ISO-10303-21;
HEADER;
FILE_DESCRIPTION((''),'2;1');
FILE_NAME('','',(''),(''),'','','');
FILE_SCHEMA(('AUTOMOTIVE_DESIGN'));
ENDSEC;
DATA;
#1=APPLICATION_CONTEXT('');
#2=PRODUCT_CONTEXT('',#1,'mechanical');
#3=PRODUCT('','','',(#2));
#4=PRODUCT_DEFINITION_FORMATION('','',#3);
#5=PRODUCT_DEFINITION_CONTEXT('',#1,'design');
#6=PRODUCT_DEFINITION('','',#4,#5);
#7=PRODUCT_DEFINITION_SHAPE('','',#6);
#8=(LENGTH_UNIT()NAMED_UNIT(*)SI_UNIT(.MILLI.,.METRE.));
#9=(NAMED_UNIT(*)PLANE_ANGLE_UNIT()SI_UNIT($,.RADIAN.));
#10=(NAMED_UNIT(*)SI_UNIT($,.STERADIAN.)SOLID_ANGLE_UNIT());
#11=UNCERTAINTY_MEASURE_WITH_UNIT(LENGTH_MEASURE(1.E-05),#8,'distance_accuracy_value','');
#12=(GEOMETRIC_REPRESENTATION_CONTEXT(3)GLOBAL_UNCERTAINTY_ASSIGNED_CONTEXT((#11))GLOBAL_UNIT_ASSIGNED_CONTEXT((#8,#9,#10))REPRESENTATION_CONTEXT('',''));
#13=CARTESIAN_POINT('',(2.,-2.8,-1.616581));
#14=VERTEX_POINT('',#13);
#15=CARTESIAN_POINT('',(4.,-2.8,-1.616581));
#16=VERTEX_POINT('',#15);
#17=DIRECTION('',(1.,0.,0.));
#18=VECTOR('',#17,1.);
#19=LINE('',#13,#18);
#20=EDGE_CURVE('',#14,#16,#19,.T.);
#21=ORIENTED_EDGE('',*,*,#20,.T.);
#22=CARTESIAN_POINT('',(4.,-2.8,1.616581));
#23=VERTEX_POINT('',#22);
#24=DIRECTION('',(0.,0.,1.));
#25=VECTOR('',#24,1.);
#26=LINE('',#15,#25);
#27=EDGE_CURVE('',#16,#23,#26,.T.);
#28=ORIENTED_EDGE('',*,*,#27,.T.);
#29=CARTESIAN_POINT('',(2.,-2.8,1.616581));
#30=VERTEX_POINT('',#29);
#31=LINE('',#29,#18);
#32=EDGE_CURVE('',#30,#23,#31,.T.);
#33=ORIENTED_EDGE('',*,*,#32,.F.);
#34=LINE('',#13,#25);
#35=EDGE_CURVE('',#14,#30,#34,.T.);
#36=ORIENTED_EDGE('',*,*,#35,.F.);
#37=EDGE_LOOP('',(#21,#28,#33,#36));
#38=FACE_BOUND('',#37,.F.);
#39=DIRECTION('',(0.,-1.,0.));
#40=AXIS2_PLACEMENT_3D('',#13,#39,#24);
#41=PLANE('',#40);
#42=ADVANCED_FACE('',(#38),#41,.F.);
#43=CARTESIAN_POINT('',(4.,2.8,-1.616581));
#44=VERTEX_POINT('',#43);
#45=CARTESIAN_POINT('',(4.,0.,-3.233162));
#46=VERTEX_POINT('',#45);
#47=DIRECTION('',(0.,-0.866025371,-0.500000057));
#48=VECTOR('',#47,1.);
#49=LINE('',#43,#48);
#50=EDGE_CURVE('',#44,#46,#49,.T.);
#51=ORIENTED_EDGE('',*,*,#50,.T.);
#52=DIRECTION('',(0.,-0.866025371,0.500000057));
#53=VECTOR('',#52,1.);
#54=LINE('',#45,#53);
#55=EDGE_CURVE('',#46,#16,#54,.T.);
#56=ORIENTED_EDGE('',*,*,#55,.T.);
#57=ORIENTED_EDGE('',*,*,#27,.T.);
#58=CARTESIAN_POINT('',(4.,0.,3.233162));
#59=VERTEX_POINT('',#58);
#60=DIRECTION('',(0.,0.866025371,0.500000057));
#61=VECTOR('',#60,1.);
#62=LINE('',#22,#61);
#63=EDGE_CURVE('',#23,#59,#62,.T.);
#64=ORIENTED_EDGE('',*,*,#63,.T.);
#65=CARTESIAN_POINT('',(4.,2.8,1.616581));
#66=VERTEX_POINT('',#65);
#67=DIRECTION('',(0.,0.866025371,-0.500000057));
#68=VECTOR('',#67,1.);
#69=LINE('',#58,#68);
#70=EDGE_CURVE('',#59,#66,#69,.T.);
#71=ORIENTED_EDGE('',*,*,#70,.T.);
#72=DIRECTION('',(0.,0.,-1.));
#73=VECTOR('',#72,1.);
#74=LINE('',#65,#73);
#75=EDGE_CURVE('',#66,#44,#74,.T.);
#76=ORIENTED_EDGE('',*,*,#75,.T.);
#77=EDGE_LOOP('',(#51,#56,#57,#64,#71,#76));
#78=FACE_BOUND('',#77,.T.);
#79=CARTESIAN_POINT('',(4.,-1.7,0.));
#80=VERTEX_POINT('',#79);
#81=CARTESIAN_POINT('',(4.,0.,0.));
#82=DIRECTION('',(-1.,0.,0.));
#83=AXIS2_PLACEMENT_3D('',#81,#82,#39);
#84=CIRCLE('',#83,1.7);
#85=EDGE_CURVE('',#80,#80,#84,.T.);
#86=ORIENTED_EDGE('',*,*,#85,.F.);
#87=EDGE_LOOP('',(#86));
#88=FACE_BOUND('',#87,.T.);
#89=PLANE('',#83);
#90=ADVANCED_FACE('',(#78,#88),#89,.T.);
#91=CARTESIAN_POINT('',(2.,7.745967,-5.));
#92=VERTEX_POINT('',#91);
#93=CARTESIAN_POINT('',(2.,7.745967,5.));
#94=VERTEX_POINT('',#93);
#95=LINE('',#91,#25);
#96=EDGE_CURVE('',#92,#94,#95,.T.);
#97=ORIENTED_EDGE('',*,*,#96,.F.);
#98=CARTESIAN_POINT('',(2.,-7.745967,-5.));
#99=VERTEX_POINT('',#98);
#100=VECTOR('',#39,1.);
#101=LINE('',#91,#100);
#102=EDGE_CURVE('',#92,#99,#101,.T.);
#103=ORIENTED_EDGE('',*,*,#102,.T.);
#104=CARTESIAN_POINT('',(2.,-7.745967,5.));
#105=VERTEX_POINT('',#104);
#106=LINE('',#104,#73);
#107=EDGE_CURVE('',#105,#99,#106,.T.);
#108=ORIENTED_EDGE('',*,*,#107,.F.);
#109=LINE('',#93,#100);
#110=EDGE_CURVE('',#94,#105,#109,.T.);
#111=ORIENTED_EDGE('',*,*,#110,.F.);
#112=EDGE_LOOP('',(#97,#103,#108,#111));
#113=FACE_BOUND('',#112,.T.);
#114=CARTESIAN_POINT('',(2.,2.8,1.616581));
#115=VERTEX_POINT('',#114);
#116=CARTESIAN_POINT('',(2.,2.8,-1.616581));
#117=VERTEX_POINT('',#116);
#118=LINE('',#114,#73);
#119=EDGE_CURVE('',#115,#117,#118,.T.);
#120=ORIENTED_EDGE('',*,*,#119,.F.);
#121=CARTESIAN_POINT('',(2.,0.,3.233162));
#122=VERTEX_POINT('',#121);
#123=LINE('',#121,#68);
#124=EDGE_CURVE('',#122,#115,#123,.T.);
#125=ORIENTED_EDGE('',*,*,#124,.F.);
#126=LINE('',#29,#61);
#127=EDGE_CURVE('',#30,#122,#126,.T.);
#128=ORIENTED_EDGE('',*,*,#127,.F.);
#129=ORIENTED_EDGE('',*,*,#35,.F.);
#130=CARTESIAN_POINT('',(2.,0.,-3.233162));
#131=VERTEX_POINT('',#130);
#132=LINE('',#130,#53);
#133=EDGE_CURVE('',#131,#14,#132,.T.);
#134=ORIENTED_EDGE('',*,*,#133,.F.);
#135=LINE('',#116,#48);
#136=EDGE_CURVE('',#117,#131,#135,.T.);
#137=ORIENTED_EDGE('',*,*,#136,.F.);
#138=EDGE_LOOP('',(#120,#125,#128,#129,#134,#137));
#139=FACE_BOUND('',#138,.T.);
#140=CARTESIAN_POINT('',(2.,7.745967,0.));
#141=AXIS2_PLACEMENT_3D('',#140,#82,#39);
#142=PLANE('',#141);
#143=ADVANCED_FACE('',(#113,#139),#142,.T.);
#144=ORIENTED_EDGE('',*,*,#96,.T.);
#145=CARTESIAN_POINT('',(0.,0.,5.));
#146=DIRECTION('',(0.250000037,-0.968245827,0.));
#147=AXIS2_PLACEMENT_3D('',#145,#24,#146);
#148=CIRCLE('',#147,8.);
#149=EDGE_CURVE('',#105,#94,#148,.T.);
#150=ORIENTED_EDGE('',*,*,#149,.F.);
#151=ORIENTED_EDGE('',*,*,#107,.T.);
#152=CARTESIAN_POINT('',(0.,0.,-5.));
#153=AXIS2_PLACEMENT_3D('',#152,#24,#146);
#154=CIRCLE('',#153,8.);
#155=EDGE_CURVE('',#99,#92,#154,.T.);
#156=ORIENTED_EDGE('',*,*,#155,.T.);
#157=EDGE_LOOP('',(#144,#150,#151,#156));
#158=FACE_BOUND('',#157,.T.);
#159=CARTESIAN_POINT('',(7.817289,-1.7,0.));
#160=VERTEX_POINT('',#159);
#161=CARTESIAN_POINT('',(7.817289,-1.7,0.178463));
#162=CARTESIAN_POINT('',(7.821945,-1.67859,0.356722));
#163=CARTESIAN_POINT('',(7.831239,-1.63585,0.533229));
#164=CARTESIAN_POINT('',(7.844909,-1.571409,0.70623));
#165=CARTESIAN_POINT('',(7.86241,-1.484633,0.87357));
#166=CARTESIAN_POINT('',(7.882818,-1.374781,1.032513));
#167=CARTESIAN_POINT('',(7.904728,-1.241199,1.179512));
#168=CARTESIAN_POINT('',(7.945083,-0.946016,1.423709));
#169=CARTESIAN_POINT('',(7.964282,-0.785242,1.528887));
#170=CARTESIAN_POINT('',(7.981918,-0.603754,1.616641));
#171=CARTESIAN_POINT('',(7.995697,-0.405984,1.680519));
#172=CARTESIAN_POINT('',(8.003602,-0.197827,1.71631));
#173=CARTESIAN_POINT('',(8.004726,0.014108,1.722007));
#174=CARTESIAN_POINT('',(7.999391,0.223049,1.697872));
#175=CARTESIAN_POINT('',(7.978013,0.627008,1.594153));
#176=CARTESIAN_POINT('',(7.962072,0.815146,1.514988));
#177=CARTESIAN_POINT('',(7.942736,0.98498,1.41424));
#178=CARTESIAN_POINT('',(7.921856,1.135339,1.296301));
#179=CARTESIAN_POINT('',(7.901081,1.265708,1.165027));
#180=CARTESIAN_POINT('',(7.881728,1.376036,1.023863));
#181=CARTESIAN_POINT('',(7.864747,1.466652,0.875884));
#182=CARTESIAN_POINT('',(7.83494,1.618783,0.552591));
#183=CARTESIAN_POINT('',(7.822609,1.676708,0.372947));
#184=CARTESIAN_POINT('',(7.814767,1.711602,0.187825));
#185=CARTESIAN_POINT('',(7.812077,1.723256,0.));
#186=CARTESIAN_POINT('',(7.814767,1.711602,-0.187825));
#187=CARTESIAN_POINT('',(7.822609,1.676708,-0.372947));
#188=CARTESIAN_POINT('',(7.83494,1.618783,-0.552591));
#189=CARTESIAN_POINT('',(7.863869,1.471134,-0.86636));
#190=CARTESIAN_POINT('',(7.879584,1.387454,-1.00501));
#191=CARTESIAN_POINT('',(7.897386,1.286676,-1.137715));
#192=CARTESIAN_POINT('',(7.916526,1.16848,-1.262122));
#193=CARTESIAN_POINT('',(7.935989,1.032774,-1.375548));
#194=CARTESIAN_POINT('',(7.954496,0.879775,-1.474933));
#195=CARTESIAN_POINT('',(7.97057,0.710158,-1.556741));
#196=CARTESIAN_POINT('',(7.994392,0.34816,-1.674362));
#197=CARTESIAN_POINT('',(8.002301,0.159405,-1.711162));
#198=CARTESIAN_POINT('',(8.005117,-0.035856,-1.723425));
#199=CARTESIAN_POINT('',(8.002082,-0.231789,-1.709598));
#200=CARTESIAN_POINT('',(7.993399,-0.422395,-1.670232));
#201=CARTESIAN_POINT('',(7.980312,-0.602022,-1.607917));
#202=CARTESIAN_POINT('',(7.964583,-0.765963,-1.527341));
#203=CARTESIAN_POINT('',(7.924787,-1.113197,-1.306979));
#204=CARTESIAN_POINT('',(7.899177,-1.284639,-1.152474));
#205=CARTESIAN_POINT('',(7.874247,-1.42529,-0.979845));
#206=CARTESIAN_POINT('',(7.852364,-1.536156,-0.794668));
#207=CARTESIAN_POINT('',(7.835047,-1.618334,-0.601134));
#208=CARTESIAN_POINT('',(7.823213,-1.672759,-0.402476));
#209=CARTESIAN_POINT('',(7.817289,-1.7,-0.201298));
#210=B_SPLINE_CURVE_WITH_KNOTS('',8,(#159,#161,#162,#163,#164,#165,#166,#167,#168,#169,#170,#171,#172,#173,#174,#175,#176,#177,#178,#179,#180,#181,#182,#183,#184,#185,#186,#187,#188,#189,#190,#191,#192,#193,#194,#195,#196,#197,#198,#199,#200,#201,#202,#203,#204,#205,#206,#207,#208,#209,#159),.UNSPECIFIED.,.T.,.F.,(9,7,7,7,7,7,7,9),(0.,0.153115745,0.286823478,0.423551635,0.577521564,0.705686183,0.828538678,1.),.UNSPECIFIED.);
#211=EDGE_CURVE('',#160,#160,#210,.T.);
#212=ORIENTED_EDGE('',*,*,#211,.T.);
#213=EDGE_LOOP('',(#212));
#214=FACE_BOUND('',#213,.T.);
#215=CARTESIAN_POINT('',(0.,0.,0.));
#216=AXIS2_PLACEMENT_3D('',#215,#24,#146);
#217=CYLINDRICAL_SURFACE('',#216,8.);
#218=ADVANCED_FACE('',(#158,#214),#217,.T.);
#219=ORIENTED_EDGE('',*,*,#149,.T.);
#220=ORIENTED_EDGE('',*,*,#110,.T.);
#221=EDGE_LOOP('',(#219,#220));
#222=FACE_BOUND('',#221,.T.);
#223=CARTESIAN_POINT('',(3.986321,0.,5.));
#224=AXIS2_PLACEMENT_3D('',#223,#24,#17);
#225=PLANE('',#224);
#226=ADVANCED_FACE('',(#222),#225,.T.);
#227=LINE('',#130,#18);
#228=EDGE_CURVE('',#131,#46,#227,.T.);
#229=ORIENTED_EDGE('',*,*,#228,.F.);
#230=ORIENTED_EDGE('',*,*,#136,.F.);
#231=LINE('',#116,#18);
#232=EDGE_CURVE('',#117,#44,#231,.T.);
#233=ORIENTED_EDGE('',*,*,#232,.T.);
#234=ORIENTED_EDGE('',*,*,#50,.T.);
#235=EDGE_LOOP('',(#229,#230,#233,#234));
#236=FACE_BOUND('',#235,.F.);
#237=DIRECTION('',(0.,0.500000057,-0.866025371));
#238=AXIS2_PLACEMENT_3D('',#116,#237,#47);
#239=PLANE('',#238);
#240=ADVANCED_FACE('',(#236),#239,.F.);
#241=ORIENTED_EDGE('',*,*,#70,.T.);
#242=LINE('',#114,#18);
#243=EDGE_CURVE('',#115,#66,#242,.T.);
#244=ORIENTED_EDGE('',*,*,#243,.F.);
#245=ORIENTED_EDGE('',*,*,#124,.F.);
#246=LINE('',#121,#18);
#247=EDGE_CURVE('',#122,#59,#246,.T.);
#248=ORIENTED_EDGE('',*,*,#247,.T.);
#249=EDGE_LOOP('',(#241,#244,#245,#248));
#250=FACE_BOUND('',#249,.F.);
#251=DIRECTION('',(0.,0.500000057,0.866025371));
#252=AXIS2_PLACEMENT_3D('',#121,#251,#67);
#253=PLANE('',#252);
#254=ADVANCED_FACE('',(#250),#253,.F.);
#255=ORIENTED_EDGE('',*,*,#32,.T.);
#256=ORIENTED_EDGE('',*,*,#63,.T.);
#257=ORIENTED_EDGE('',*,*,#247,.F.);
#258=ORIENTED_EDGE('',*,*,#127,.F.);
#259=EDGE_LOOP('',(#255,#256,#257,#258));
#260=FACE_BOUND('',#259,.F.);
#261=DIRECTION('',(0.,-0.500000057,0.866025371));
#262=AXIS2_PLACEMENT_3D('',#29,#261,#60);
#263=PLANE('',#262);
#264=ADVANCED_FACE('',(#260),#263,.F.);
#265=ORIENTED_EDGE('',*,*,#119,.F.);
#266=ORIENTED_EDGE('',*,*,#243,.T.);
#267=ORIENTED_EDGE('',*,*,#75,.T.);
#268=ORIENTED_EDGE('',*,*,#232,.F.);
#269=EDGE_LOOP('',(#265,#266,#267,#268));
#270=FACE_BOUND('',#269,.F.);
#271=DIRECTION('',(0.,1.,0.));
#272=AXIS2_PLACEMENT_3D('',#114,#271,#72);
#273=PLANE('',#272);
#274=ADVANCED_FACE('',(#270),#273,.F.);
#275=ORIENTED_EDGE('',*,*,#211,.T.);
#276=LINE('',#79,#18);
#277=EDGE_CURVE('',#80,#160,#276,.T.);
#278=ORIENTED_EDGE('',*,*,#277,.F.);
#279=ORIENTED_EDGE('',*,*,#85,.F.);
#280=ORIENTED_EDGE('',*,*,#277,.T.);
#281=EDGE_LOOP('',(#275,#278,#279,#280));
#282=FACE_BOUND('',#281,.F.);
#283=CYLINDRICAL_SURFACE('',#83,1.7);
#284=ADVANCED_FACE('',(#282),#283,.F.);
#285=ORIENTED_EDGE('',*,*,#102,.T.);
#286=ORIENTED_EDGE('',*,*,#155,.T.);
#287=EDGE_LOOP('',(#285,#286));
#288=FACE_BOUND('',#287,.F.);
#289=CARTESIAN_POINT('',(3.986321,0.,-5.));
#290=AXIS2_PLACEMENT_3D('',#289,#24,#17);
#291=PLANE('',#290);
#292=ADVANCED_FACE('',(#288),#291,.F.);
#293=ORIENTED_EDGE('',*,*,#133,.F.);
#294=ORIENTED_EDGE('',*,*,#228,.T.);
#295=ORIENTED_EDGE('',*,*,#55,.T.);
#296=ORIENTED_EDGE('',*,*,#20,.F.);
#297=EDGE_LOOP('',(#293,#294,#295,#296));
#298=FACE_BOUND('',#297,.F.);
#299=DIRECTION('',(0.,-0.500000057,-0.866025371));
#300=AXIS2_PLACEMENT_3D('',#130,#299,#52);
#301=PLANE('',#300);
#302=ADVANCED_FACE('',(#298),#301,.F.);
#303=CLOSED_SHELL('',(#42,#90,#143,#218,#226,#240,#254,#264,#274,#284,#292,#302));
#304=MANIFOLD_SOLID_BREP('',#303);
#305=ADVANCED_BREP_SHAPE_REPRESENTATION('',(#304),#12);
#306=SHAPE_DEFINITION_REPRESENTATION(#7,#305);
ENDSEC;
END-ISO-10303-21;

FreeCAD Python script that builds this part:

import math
import FreeCAD as App
import Part
import Sketcher
from FreeCAD import Vector
Q = App.Units.Quantity

doc = App.newDocument("Part")
body = doc.addObject("PartDesign::Body", "Body")

# Sketch on XY plane
sketch1 = body.newObject("Sketcher::SketchObject", "Sketch")
sketch1.AttachmentSupport = (doc.getObject("XY_Plane"), [""])
sketch1.MapMode = "FlatFace"
sketch1.addGeometry([
    Part.ArcOfCircle(Part.Circle(Vector(0, 0, 0), Vector(0, 0, 1), 8), math.radians(-76), math.radians(76)),
    Part.LineSegment(Vector(2, 8, 0), Vector(2, -8, 0)),
], False)
sketch1.addConstraint([
    Sketcher.Constraint("Coincident", 0, 1, 1, 2),
    Sketcher.Constraint("Coincident", 1, 1, 0, 2),
    Sketcher.Constraint("Vertical", 1),
    Sketcher.Constraint("Coincident", 0, 3, -1, 1),
    Sketcher.Constraint("Radius", 0, 8.0),
    Sketcher.Constraint("DistanceX", -1, 1, 0, 1, 2.0),
])
pad1 = body.newObject("PartDesign::Pad", "Pad")
pad1.Profile = sketch1
pad1.Length = 10
pad1.Midplane = True

# Sketch on YZ plane
sketch2 = body.newObject("Sketcher::SketchObject", "Sketch001")
sketch2.AttachmentSupport = (doc.getObject("YZ_Plane"), [""])
sketch2.MapMode = "FlatFace"
sketch2.AttachmentOffset = App.Placement(Vector(0, 0, 2), App.Rotation())
sketch2.addGeometry([
    Part.LineSegment(Vector(-2.8, -1.6, 0), Vector(-2.8, 1.6, 0)),  # 0
    Part.LineSegment(Vector(-2.8, 1.6, 0), Vector(0, 3.2, 0)),  # 1
    Part.LineSegment(Vector(0, 3.2, 0), Vector(2.8, 1.6, 0)),  # 2
    Part.LineSegment(Vector(2.8, 1.6, 0), Vector(2.8, -1.6, 0)),  # 3
    Part.LineSegment(Vector(2.8, -1.6, 0), Vector(0, -3.2, 0)),  # 4
    Part.LineSegment(Vector(0, -3.2, 0), Vector(-2.8, -1.6, 0)),  # 5
], False)
sketch2.addConstraint([
    Sketcher.Constraint("Coincident", 0, 2, 1, 1),
    Sketcher.Constraint("Coincident", 1, 2, 2, 1),
    Sketcher.Constraint("Coincident", 2, 2, 3, 1),
    Sketcher.Constraint("Coincident", 3, 2, 4, 1),
    Sketcher.Constraint("Coincident", 4, 2, 5, 1),
    Sketcher.Constraint("Coincident", 5, 2, 0, 1),
    Sketcher.Constraint("Vertical", 0),
    Sketcher.Constraint("Vertical", 3),
    Sketcher.Constraint("Symmetric", 0, 2, 3, 2, -1, 1),
    Sketcher.Constraint("Symmetric", 1, 2, 4, 2, -1, 1),
    Sketcher.Constraint("PointOnObject", 1, 2, -2),
    Sketcher.Constraint("Parallel", 2, 5),
    Sketcher.Constraint("Horizontal", 0, 2, 2, 2),
    Sketcher.Constraint("Angle", 1, Q("30.000004 deg")),
    Sketcher.Constraint("DistanceX", 0, 2, -1, 1, 2.8),
    Sketcher.Constraint("DistanceY", 0, 1, 0, 2, 3.233162),
])
pocket1 = body.newObject("PartDesign::Pocket", "Pocket")
pocket1.Profile = sketch2
pocket1.Length = 2
pocket1.Reversed = True

# Sketch on YZ plane
sketch3 = body.newObject("Sketcher::SketchObject", "Sketch002")
sketch3.AttachmentSupport = (doc.getObject("YZ_Plane"), [""])
sketch3.MapMode = "FlatFace"
sketch3.AttachmentOffset = App.Placement(Vector(0, 0, 4), App.Rotation())
sketch3.addGeometry(Part.Circle(Vector(0, 0, 0), Vector(0, 0, 1), 1.7), False)
sketch3.addConstraint([
    Sketcher.Constraint("Coincident", 0, 3, -1, 1),
    Sketcher.Constraint("Diameter", 0, 3.4),
])
pocket2 = body.newObject("PartDesign::Pocket", "Pocket001")
pocket2.Profile = sketch3
pocket2.Type = "ThroughAll"
pocket2.Reversed = True

doc.recompute()
